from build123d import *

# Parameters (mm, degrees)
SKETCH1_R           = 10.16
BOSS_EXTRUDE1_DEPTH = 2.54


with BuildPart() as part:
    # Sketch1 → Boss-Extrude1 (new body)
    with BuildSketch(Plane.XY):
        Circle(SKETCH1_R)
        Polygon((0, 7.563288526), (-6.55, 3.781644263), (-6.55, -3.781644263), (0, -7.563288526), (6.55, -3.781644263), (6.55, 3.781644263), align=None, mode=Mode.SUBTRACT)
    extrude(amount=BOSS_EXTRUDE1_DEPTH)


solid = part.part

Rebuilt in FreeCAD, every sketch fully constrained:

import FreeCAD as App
import Part
import Sketcher

V = App.Vector
Q = App.Units.Quantity


def add_polygon(sketch, points):
    """Adds a closed chain of lines whose ends are joined by coincident constraints."""
    first, n = sketch.GeometryCount, len(points)
    for a, b in zip(points, points[1:] + points[:1]):
        sketch.addGeometry(Part.LineSegment(App.Vector(*a, 0), App.Vector(*b, 0)), False)
    for i in range(n):
        sketch.addConstraint(Sketcher.Constraint("Coincident", first + i, 2, first + (i + 1) % n, 1))

doc = App.newDocument("Part")
body = doc.addObject("PartDesign::Body", "Body")

# Sketch on XY plane
sketch1 = body.newObject("Sketcher::SketchObject", "Sketch")
sketch1.AttachmentSupport = (doc.getObject("XY_Plane"), [""])
sketch1.MapMode = "FlatFace"
sketch1.addGeometry(Part.Circle(V(0, 0, 0), V(0, 0, 1), 10), False)  # 0
add_polygon(sketch1, [(-7, 4), (0, 8), (7, 4), (7, -4), (0, -8), (-7, -4)])  # lines 1-6
sketch1.addConstraint(Sketcher.Constraint("Vertical", 3))
sketch1.addConstraint(Sketcher.Constraint("Vertical", 6))
sketch1.addConstraint(Sketcher.Constraint("Coincident", 0, 3, -1, 1))
sketch1.addConstraint(Sketcher.Constraint("Symmetric", 1, 2, 4, 2, -1, 1))
sketch1.addConstraint(Sketcher.Constraint("Symmetric", 2, 2, 5, 2, -1, 1))
sketch1.addConstraint(Sketcher.Constraint("PointOnObject", 1, 2, -2))
sketch1.addConstraint(Sketcher.Constraint("Parallel", 1, 4))
sketch1.addConstraint(Sketcher.Constraint("Horizontal", 3, 2, 5, 2))
sketch1.addConstraint(Sketcher.Constraint("Diameter", 0, Q("0.8 in")))
sketch1.addConstraint(Sketcher.Constraint("Angle", 1, Q("30 deg")))
sketch1.addConstraint(Sketcher.Constraint("DistanceY", 3, 2, 3, 1, Q("7.563289 mm")))
sketch1.addConstraint(Sketcher.Constraint("DistanceX", -1, 1, 2, 2, Q("6.55 mm")))
pad1 = body.newObject("PartDesign::Pad", "Pad")
pad1.Profile = sketch1
pad1.Length = Q("0.1 in")

doc.recompute()
